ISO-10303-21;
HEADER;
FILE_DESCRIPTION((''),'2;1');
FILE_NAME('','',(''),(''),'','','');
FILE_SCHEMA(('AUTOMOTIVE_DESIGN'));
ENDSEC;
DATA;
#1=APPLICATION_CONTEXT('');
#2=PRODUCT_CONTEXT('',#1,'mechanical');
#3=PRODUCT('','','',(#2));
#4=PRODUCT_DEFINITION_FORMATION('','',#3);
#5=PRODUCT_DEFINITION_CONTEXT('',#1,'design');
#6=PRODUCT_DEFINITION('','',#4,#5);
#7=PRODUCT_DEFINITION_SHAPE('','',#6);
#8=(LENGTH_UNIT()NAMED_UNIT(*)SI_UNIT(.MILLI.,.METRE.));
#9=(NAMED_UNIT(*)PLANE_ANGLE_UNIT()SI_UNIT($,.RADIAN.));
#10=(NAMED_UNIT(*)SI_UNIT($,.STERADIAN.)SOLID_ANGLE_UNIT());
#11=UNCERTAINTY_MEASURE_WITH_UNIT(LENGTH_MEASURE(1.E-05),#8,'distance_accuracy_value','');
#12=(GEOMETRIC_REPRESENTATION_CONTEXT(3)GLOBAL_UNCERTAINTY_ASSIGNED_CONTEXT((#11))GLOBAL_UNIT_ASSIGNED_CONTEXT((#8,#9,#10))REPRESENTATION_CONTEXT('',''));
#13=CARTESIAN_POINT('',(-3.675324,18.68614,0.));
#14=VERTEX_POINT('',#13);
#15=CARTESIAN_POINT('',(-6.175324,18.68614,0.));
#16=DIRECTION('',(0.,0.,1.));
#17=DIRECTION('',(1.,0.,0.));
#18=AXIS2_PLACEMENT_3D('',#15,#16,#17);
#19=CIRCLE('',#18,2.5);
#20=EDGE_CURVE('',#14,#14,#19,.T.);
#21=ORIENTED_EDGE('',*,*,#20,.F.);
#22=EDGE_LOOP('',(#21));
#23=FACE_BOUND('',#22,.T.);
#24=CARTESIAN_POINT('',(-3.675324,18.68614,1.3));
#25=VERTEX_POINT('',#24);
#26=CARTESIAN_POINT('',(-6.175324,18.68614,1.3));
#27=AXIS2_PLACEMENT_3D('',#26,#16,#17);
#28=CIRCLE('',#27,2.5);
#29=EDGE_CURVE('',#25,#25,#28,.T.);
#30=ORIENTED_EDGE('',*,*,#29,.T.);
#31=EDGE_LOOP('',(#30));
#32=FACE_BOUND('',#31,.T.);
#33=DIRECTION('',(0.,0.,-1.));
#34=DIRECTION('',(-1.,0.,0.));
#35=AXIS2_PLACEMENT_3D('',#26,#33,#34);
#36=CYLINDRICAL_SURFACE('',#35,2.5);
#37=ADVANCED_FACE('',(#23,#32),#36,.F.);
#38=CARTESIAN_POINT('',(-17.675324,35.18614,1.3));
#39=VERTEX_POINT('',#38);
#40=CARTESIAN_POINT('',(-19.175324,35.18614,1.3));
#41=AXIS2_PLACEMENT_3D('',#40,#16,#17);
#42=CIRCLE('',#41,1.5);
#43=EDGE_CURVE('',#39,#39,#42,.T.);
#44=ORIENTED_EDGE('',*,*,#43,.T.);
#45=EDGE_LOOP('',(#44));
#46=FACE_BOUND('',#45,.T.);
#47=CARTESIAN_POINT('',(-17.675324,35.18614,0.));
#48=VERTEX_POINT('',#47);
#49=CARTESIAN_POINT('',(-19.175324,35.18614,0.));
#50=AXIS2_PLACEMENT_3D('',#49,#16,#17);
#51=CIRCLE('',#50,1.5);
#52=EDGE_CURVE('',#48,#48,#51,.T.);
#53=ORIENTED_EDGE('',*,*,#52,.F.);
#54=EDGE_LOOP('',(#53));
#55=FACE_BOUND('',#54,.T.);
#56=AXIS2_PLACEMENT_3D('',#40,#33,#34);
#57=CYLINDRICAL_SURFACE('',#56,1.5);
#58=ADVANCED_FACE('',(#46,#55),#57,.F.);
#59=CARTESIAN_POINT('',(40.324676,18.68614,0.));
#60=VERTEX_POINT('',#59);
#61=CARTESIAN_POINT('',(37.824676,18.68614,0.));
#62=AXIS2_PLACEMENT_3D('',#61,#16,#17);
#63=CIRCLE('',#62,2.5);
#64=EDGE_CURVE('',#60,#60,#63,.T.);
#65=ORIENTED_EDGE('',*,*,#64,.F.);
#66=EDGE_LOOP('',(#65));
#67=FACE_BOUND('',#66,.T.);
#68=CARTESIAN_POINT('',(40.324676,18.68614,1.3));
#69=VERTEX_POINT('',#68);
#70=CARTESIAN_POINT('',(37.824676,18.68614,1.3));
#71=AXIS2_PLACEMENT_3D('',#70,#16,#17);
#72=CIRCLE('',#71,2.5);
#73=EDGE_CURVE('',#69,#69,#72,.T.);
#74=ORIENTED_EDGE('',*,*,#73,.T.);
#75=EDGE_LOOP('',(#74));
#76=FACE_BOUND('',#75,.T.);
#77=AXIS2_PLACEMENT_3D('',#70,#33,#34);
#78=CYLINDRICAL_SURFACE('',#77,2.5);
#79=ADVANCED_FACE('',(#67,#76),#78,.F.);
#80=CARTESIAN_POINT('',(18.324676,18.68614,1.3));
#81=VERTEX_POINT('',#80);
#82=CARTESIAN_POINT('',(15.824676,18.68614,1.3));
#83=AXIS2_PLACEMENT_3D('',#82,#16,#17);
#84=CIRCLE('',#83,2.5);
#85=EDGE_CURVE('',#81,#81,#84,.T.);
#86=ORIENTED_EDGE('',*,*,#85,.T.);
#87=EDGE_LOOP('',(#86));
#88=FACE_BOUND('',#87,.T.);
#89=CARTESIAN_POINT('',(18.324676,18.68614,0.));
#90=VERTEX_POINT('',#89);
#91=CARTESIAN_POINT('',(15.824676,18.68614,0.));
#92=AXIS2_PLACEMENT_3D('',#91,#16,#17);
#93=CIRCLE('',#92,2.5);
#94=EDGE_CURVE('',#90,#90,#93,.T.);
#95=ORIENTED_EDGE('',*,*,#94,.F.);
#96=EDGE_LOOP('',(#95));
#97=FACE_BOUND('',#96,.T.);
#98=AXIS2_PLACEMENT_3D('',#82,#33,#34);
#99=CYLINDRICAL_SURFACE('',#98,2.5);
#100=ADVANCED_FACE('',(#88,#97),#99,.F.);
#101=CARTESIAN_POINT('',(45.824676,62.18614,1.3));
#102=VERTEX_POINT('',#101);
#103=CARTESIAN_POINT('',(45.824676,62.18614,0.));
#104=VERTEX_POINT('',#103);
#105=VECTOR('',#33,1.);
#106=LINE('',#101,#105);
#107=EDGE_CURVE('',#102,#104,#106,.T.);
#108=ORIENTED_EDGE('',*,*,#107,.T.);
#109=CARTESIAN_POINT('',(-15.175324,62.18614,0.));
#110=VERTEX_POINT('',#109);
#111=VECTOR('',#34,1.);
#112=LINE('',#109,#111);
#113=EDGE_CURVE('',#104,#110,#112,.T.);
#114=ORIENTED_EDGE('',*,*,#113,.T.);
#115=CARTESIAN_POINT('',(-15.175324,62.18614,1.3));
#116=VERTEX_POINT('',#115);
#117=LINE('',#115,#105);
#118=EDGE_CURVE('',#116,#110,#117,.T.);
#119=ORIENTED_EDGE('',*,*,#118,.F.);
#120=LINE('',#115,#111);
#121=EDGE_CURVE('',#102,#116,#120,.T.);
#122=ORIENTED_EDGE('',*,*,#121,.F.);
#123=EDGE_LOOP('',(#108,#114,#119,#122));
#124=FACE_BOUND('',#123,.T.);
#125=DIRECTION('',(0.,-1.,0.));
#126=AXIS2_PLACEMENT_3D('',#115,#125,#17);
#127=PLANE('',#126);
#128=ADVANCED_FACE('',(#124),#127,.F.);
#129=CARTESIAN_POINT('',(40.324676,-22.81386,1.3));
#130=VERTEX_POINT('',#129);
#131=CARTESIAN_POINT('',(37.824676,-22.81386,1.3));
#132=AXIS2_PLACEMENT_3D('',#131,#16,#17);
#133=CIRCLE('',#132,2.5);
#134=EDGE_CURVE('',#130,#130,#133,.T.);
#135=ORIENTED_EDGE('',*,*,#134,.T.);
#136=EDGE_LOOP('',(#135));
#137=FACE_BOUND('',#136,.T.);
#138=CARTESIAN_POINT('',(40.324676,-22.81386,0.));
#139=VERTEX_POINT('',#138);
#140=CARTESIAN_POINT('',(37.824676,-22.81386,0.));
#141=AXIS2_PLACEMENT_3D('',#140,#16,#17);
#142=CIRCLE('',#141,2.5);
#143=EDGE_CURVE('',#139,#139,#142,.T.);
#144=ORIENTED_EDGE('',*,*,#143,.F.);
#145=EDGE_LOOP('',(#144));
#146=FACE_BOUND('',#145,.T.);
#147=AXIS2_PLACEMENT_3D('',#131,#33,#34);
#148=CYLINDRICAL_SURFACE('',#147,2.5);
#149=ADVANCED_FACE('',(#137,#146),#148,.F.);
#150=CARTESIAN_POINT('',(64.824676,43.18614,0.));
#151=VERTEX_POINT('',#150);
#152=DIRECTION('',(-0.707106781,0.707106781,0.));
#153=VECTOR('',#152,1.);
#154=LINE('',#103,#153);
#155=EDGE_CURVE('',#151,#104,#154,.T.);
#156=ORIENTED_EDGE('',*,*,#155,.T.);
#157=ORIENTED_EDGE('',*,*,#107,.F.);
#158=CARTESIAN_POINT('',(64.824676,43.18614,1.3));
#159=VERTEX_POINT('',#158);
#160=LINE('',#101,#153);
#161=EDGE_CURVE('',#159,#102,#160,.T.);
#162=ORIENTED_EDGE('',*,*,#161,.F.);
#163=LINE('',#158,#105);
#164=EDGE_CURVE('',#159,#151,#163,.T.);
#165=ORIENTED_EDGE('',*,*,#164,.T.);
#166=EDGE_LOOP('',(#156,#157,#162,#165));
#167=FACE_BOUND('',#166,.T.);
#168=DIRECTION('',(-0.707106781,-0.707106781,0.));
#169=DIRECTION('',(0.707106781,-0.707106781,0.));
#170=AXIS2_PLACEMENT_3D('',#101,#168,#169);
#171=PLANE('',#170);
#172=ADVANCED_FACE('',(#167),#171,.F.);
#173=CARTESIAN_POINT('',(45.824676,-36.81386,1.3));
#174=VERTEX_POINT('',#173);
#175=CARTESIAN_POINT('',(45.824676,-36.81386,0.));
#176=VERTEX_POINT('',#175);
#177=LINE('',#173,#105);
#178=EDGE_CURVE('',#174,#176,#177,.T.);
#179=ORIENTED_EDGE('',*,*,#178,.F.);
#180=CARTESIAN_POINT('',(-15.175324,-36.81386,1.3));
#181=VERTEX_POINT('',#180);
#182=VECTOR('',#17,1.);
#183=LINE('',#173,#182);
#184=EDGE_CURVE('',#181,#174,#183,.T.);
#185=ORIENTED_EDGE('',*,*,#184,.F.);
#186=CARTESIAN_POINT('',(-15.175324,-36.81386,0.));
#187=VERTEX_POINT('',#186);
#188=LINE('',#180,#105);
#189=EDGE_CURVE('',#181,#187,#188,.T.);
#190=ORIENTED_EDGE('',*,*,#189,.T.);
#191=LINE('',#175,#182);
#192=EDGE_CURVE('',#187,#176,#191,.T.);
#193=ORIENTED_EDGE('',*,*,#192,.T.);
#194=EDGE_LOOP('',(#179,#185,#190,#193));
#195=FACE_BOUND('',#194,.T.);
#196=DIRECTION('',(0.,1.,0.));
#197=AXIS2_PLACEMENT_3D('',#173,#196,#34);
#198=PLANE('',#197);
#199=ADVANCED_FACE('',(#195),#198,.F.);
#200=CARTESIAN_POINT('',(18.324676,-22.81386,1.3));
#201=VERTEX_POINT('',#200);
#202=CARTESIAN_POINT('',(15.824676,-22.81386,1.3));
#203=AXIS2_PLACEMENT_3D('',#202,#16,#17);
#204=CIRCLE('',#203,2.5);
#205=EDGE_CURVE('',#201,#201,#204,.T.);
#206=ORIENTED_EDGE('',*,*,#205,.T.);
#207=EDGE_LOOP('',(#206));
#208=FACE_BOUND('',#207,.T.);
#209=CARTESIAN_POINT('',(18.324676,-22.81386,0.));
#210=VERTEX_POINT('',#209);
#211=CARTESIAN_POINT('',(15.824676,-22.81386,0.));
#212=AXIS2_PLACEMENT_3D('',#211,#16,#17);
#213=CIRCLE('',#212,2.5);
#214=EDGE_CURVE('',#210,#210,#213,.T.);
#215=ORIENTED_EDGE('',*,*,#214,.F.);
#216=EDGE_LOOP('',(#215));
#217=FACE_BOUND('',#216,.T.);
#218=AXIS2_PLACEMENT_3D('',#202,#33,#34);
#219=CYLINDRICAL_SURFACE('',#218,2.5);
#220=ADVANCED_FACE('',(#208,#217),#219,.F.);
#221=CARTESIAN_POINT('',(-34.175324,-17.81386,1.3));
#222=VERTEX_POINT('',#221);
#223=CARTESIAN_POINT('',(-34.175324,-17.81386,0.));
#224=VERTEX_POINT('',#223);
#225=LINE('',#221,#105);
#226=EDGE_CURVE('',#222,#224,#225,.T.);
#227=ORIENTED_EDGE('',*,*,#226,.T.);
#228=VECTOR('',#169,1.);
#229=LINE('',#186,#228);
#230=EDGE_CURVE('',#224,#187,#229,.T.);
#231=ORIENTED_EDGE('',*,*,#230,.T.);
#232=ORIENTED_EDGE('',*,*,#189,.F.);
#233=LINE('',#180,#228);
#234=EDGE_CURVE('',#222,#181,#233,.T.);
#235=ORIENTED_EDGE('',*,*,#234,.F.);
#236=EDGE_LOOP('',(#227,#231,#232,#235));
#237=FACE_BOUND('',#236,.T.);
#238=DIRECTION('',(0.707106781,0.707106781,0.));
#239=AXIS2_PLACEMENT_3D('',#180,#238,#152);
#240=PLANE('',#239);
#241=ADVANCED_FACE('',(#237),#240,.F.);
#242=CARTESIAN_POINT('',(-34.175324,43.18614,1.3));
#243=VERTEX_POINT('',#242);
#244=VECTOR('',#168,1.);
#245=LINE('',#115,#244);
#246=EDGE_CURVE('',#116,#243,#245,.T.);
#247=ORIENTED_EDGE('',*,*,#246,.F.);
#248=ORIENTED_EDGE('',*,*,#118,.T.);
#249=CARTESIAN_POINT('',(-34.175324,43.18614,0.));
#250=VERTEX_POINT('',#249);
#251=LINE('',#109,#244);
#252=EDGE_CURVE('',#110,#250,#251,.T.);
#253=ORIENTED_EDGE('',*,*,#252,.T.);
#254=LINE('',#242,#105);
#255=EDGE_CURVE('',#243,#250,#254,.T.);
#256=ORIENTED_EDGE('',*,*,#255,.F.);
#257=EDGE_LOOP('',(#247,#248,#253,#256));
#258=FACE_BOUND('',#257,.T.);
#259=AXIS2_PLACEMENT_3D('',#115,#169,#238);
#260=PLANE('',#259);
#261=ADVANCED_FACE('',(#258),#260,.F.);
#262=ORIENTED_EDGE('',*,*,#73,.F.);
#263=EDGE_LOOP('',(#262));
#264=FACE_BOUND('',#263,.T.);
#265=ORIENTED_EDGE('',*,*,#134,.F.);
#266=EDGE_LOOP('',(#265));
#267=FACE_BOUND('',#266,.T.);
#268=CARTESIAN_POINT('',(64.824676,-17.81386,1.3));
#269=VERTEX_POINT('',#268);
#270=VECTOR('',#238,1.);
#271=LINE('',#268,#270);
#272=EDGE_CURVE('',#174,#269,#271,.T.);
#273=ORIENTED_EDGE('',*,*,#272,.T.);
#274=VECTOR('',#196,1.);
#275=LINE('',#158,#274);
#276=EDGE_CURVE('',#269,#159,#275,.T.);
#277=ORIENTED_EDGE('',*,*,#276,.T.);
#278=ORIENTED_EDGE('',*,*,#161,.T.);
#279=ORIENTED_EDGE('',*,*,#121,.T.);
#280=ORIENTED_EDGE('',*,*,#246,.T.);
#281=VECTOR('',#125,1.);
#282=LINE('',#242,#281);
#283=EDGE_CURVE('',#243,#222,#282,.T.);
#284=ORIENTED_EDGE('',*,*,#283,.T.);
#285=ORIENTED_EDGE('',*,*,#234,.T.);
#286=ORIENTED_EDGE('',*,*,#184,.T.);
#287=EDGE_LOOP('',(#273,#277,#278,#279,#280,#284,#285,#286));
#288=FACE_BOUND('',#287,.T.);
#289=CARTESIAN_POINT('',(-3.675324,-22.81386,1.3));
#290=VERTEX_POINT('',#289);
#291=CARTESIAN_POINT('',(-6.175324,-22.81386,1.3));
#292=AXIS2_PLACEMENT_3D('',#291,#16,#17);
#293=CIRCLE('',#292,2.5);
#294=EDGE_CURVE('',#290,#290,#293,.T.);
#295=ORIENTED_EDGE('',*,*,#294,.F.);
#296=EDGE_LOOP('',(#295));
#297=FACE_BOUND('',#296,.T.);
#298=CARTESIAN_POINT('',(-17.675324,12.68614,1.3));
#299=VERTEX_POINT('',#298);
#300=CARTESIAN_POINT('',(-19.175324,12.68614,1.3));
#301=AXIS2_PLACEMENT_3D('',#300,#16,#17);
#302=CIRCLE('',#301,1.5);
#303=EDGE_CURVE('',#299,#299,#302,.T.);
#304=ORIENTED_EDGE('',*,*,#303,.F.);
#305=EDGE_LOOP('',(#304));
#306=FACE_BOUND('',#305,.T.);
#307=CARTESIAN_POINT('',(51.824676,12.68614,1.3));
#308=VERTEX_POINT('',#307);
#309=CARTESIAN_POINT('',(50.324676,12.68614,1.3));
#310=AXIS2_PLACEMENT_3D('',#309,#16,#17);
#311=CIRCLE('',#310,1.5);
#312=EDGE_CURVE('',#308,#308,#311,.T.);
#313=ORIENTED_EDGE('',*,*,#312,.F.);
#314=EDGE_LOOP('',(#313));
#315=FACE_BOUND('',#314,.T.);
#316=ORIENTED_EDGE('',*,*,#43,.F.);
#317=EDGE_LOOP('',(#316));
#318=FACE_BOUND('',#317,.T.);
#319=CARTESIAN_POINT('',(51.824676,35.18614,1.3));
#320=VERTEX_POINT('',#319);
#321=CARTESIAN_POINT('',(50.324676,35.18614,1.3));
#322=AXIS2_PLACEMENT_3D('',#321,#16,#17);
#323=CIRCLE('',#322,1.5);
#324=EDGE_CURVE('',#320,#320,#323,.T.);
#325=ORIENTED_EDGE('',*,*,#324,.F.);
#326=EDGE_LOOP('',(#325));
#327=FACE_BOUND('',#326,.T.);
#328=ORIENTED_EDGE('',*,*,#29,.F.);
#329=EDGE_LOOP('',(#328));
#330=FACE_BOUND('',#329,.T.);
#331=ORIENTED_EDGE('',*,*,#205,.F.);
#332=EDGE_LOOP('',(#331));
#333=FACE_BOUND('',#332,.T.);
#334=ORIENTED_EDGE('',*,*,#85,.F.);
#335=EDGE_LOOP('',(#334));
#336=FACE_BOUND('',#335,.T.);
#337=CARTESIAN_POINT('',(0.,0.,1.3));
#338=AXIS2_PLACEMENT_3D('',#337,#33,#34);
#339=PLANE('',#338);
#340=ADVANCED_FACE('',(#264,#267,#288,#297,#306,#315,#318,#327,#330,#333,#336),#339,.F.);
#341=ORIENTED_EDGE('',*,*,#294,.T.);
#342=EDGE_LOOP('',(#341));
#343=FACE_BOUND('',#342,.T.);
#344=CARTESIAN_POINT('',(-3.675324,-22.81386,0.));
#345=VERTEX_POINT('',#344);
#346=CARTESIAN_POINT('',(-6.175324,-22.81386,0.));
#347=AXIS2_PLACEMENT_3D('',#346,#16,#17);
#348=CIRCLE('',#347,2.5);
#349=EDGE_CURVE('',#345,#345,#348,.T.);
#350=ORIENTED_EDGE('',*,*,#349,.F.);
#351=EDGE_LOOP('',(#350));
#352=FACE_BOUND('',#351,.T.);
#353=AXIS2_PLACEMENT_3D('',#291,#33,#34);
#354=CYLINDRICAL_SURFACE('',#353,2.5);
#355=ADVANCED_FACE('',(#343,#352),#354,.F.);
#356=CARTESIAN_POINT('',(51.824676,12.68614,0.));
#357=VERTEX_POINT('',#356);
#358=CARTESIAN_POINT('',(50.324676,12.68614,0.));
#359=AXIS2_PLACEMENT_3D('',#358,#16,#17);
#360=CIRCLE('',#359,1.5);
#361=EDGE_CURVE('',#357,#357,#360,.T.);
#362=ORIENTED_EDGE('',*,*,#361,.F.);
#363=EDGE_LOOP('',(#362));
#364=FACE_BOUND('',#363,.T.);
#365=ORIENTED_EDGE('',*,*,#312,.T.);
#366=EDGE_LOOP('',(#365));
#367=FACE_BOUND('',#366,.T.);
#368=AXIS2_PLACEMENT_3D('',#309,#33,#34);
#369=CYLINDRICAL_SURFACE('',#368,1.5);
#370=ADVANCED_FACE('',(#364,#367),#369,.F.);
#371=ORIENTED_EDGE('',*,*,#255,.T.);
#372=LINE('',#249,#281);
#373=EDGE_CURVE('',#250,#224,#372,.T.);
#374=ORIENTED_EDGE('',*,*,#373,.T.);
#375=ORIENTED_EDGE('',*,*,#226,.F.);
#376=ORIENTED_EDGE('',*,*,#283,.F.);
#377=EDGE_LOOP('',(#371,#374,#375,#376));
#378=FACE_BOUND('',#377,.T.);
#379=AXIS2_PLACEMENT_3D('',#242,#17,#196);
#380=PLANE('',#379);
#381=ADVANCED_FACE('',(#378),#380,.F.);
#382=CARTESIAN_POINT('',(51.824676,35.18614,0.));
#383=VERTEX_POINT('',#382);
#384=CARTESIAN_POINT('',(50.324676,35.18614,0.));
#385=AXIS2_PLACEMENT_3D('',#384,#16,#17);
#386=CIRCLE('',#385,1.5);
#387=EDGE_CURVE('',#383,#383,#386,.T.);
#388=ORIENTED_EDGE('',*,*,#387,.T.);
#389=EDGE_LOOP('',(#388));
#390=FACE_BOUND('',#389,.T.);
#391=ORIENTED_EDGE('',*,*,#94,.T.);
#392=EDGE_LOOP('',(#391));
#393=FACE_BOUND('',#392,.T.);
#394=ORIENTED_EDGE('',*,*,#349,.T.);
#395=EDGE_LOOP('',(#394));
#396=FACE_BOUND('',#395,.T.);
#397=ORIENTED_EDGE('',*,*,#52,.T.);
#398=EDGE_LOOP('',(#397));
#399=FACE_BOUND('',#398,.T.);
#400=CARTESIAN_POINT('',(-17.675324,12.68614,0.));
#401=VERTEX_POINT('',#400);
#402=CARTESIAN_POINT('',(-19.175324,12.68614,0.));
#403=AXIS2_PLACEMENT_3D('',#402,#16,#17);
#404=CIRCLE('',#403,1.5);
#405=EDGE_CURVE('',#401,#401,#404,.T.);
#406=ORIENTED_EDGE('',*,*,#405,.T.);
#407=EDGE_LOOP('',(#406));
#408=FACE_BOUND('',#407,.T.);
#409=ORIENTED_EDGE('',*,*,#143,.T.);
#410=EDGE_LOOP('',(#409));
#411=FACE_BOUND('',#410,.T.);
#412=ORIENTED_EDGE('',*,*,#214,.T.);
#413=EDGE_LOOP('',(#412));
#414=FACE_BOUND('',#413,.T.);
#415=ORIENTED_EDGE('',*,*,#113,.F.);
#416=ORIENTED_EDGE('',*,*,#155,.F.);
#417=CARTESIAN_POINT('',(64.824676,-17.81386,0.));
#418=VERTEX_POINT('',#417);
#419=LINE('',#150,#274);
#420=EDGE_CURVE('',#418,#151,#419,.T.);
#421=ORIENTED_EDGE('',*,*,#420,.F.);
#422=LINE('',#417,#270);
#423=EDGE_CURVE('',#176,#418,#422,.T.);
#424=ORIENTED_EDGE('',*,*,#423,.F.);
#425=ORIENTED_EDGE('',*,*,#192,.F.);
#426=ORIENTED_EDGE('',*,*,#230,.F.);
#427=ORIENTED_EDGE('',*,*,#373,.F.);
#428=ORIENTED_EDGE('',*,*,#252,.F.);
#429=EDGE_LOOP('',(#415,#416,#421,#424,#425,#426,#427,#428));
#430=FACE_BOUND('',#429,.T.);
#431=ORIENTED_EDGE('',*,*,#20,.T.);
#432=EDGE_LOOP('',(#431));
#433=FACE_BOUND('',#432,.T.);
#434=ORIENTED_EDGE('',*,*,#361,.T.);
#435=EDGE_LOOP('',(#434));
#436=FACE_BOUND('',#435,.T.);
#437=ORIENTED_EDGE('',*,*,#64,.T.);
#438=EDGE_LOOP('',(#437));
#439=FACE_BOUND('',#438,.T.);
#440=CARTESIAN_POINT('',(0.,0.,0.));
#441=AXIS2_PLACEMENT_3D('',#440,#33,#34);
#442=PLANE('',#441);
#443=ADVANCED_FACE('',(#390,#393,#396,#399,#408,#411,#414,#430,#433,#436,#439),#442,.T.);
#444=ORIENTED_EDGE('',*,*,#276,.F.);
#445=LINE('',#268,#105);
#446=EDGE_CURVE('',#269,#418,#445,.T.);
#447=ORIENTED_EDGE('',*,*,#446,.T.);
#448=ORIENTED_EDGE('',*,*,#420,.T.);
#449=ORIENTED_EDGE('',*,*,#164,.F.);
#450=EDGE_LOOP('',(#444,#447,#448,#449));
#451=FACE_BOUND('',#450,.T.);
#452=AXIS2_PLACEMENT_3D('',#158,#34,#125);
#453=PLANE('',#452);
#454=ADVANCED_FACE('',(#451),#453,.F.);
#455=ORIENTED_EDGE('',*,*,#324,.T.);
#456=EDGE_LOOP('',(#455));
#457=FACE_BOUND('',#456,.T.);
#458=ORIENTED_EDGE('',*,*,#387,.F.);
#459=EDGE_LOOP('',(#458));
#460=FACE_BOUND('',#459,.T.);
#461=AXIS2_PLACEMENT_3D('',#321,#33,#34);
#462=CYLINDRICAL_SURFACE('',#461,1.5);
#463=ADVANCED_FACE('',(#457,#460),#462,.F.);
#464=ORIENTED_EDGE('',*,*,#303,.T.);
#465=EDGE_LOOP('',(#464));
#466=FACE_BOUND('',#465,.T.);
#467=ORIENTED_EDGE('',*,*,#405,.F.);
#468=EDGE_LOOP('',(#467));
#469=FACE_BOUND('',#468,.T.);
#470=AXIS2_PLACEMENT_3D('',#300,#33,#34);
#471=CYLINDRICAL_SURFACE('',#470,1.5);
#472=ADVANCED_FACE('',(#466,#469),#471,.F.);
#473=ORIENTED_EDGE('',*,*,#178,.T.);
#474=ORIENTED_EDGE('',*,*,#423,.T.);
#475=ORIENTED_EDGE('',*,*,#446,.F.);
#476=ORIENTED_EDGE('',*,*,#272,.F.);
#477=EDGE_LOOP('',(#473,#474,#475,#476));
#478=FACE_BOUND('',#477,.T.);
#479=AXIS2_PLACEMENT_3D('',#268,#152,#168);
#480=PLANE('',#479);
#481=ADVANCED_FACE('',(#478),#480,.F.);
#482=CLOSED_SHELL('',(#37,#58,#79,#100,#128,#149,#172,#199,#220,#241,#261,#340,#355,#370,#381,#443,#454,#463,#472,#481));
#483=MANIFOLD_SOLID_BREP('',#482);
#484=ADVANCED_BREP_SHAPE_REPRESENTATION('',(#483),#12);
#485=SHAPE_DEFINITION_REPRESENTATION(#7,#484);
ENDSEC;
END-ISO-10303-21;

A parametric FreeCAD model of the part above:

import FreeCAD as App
import Part
import Sketcher

V = App.Vector
Q = App.Units.Quantity

doc = App.newDocument("Part")
body = doc.addObject("PartDesign::Body", "Body")

sketch1 = body.newObject("Sketcher::SketchObject", "Sketch")
sketch1.AttachmentSupport = (doc.getObject("XY_Plane"), [""])
sketch1.MapMode = "FlatFace"
sketch1.addGeometry([
    Part.LineSegment(V(-34.2, 43.2, 0), V(-34.2, -17.8, 0)),
    Part.LineSegment(V(-34.2, -17.8, 0), V(-15.2, -36.8, 0)),
    Part.LineSegment(V(-15.2, -36.8, 0), V(45.8, -36.8, 0)),
    Part.LineSegment(V(45.8, -36.8, 0), V(64.8, -17.8, 0)),
    Part.LineSegment(V(64.8, -17.8, 0), V(64.8, 43.2, 0)),
    Part.LineSegment(V(64.8, 43.2, 0), V(45.8, 62.2, 0)),
    Part.LineSegment(V(45.8, 62.2, 0), V(-15.2, 62.2, 0)),
    Part.LineSegment(V(-15.2, 62.2, 0), V(-34.2, 43.2, 0)),
    Part.Circle(V(-6.2, -22.8, 0), V(0, 0, 1), 2.5),
    Part.Circle(V(15.8, -22.8, 0), V(0, 0, 1), 2.5),
    Part.Circle(V(37.8, -22.8, 0), V(0, 0, 1), 2.5),
    Part.Circle(V(-19.2, 12.7, 0), V(0, 0, 1), 1.5),
    Part.Circle(V(-6.2, 18.7, 0), V(0, 0, 1), 2.5),
    Part.Circle(V(-19.2, 35.2, 0), V(0, 0, 1), 1.5),
    Part.Circle(V(15.8, 18.7, 0), V(0, 0, 1), 2.5),
    Part.Circle(V(50.3, 12.7, 0), V(0, 0, 1), 1.5),
    Part.Circle(V(37.8, 18.7, 0), V(0, 0, 1), 2.5),
    Part.Circle(V(50.3, 35.2, 0), V(0, 0, 1), 1.5),
], False)
sketch1.addConstraint([
    Sketcher.Constraint("Coincident", 0, 2, 1, 1),
    Sketcher.Constraint("Coincident", 1, 2, 2, 1),
    Sketcher.Constraint("Coincident", 2, 2, 3, 1),
    Sketcher.Constraint("Coincident", 3, 2, 4, 1),
    Sketcher.Constraint("Coincident", 4, 2, 5, 1),
    Sketcher.Constraint("Coincident", 5, 2, 6, 1),
    Sketcher.Constraint("Coincident", 6, 2, 7, 1),
    Sketcher.Constraint("Coincident", 7, 2, 0, 1),
    Sketcher.Constraint("Vertical", 0),
    Sketcher.Constraint("Horizontal", 2),
    Sketcher.Constraint("Vertical", 4),
    Sketcher.Constraint("Horizontal", 6),
    Sketcher.Constraint("Equal", 8, 9),
    Sketcher.Constraint("Equal", 9, 10),
    Sketcher.Constraint("Equal", 10, 12),
    Sketcher.Constraint("Equal", 11, 13),
    Sketcher.Constraint("Equal", 12, 14),
    Sketcher.Constraint("Equal", 13, 15),
    Sketcher.Constraint("Equal", 14, 16),
    Sketcher.Constraint("Equal", 15, 17),
    Sketcher.Constraint("Perpendicular", 1, 3),
    Sketcher.Constraint("Perpendicular", 3, 5),
    Sketcher.Constraint("Perpendicular", 5, 7),
    Sketcher.Constraint("Horizontal", 8, 3, 9, 3),
    Sketcher.Constraint("Horizontal", 9, 3, 10, 3),
    Sketcher.Constraint("Horizontal", 12, 3, 14, 3),
    Sketcher.Constraint("Horizontal", 11, 3, 15, 3),
    Sketcher.Constraint("Horizontal", 14, 3, 16, 3),
    Sketcher.Constraint("Horizontal", 13, 3, 17, 3),
    Sketcher.Constraint("Horizontal", 0, 2, 3, 2),
    Sketcher.Constraint("Horizontal", 4, 2, 7, 2),
    Sketcher.Constraint("Vertical", 8, 3, 12, 3),
    Sketcher.Constraint("Vertical", 11, 3, 13, 3),
    Sketcher.Constraint("Vertical", 9, 3, 14, 3),
    Sketcher.Constraint("Vertical", 10, 3, 16, 3),
    Sketcher.Constraint("Vertical", 15, 3, 17, 3),
    Sketcher.Constraint("Vertical", 2, 2, 5, 2),
    Sketcher.Constraint("Vertical", 1, 2, 6, 2),
    Sketcher.Constraint("Equal", 6, 0),
    Sketcher.Constraint("Diameter", 8, Q("5 mm")),
    Sketcher.Constraint("Diameter", 11, Q("3 mm")),
    Sketcher.Constraint("DistanceX", 2, 1, 2, 2, Q("61 mm")),
    Sketcher.Constraint("DistanceX", 8, 3, 9, 3, Q("22 mm")),
    Sketcher.Constraint("DistanceX", 9, 3, 10, 3, Q("22 mm")),
    Sketcher.Constraint("DistanceX", 11, 3, 8, 3, Q("13 mm")),
    Sketcher.Constraint("DistanceY", 11, 3, 12, 3, Q("6 mm")),
    Sketcher.Constraint("DistanceY", 8, 3, 13, 3, Q("58 mm")),
    Sketcher.Constraint("DistanceX", 0, 2, 8, 3, Q("28 mm")),
    Sketcher.Constraint("DistanceY", 8, 3, 0, 2, Q("5 mm")),
    Sketcher.Constraint("DistanceX", 1, 2, 8, 3, Q("9 mm")),
    Sketcher.Constraint("DistanceY", 8, 3, 11, 3, Q("35.5 mm")),
    Sketcher.Constraint("DistanceX", 14, 3, 15, 3, Q("34.5 mm")),
    Sketcher.Constraint("DistanceY", 8, 3, -1, 1, Q("22.81386 mm")),
    Sketcher.Constraint("DistanceX", 8, 3, -1, 1, Q("6.175324 mm")),
])
pad1 = body.newObject("PartDesign::Pad", "Pad")
pad1.Profile = sketch1
pad1.Length = 1.3

doc.recompute()
